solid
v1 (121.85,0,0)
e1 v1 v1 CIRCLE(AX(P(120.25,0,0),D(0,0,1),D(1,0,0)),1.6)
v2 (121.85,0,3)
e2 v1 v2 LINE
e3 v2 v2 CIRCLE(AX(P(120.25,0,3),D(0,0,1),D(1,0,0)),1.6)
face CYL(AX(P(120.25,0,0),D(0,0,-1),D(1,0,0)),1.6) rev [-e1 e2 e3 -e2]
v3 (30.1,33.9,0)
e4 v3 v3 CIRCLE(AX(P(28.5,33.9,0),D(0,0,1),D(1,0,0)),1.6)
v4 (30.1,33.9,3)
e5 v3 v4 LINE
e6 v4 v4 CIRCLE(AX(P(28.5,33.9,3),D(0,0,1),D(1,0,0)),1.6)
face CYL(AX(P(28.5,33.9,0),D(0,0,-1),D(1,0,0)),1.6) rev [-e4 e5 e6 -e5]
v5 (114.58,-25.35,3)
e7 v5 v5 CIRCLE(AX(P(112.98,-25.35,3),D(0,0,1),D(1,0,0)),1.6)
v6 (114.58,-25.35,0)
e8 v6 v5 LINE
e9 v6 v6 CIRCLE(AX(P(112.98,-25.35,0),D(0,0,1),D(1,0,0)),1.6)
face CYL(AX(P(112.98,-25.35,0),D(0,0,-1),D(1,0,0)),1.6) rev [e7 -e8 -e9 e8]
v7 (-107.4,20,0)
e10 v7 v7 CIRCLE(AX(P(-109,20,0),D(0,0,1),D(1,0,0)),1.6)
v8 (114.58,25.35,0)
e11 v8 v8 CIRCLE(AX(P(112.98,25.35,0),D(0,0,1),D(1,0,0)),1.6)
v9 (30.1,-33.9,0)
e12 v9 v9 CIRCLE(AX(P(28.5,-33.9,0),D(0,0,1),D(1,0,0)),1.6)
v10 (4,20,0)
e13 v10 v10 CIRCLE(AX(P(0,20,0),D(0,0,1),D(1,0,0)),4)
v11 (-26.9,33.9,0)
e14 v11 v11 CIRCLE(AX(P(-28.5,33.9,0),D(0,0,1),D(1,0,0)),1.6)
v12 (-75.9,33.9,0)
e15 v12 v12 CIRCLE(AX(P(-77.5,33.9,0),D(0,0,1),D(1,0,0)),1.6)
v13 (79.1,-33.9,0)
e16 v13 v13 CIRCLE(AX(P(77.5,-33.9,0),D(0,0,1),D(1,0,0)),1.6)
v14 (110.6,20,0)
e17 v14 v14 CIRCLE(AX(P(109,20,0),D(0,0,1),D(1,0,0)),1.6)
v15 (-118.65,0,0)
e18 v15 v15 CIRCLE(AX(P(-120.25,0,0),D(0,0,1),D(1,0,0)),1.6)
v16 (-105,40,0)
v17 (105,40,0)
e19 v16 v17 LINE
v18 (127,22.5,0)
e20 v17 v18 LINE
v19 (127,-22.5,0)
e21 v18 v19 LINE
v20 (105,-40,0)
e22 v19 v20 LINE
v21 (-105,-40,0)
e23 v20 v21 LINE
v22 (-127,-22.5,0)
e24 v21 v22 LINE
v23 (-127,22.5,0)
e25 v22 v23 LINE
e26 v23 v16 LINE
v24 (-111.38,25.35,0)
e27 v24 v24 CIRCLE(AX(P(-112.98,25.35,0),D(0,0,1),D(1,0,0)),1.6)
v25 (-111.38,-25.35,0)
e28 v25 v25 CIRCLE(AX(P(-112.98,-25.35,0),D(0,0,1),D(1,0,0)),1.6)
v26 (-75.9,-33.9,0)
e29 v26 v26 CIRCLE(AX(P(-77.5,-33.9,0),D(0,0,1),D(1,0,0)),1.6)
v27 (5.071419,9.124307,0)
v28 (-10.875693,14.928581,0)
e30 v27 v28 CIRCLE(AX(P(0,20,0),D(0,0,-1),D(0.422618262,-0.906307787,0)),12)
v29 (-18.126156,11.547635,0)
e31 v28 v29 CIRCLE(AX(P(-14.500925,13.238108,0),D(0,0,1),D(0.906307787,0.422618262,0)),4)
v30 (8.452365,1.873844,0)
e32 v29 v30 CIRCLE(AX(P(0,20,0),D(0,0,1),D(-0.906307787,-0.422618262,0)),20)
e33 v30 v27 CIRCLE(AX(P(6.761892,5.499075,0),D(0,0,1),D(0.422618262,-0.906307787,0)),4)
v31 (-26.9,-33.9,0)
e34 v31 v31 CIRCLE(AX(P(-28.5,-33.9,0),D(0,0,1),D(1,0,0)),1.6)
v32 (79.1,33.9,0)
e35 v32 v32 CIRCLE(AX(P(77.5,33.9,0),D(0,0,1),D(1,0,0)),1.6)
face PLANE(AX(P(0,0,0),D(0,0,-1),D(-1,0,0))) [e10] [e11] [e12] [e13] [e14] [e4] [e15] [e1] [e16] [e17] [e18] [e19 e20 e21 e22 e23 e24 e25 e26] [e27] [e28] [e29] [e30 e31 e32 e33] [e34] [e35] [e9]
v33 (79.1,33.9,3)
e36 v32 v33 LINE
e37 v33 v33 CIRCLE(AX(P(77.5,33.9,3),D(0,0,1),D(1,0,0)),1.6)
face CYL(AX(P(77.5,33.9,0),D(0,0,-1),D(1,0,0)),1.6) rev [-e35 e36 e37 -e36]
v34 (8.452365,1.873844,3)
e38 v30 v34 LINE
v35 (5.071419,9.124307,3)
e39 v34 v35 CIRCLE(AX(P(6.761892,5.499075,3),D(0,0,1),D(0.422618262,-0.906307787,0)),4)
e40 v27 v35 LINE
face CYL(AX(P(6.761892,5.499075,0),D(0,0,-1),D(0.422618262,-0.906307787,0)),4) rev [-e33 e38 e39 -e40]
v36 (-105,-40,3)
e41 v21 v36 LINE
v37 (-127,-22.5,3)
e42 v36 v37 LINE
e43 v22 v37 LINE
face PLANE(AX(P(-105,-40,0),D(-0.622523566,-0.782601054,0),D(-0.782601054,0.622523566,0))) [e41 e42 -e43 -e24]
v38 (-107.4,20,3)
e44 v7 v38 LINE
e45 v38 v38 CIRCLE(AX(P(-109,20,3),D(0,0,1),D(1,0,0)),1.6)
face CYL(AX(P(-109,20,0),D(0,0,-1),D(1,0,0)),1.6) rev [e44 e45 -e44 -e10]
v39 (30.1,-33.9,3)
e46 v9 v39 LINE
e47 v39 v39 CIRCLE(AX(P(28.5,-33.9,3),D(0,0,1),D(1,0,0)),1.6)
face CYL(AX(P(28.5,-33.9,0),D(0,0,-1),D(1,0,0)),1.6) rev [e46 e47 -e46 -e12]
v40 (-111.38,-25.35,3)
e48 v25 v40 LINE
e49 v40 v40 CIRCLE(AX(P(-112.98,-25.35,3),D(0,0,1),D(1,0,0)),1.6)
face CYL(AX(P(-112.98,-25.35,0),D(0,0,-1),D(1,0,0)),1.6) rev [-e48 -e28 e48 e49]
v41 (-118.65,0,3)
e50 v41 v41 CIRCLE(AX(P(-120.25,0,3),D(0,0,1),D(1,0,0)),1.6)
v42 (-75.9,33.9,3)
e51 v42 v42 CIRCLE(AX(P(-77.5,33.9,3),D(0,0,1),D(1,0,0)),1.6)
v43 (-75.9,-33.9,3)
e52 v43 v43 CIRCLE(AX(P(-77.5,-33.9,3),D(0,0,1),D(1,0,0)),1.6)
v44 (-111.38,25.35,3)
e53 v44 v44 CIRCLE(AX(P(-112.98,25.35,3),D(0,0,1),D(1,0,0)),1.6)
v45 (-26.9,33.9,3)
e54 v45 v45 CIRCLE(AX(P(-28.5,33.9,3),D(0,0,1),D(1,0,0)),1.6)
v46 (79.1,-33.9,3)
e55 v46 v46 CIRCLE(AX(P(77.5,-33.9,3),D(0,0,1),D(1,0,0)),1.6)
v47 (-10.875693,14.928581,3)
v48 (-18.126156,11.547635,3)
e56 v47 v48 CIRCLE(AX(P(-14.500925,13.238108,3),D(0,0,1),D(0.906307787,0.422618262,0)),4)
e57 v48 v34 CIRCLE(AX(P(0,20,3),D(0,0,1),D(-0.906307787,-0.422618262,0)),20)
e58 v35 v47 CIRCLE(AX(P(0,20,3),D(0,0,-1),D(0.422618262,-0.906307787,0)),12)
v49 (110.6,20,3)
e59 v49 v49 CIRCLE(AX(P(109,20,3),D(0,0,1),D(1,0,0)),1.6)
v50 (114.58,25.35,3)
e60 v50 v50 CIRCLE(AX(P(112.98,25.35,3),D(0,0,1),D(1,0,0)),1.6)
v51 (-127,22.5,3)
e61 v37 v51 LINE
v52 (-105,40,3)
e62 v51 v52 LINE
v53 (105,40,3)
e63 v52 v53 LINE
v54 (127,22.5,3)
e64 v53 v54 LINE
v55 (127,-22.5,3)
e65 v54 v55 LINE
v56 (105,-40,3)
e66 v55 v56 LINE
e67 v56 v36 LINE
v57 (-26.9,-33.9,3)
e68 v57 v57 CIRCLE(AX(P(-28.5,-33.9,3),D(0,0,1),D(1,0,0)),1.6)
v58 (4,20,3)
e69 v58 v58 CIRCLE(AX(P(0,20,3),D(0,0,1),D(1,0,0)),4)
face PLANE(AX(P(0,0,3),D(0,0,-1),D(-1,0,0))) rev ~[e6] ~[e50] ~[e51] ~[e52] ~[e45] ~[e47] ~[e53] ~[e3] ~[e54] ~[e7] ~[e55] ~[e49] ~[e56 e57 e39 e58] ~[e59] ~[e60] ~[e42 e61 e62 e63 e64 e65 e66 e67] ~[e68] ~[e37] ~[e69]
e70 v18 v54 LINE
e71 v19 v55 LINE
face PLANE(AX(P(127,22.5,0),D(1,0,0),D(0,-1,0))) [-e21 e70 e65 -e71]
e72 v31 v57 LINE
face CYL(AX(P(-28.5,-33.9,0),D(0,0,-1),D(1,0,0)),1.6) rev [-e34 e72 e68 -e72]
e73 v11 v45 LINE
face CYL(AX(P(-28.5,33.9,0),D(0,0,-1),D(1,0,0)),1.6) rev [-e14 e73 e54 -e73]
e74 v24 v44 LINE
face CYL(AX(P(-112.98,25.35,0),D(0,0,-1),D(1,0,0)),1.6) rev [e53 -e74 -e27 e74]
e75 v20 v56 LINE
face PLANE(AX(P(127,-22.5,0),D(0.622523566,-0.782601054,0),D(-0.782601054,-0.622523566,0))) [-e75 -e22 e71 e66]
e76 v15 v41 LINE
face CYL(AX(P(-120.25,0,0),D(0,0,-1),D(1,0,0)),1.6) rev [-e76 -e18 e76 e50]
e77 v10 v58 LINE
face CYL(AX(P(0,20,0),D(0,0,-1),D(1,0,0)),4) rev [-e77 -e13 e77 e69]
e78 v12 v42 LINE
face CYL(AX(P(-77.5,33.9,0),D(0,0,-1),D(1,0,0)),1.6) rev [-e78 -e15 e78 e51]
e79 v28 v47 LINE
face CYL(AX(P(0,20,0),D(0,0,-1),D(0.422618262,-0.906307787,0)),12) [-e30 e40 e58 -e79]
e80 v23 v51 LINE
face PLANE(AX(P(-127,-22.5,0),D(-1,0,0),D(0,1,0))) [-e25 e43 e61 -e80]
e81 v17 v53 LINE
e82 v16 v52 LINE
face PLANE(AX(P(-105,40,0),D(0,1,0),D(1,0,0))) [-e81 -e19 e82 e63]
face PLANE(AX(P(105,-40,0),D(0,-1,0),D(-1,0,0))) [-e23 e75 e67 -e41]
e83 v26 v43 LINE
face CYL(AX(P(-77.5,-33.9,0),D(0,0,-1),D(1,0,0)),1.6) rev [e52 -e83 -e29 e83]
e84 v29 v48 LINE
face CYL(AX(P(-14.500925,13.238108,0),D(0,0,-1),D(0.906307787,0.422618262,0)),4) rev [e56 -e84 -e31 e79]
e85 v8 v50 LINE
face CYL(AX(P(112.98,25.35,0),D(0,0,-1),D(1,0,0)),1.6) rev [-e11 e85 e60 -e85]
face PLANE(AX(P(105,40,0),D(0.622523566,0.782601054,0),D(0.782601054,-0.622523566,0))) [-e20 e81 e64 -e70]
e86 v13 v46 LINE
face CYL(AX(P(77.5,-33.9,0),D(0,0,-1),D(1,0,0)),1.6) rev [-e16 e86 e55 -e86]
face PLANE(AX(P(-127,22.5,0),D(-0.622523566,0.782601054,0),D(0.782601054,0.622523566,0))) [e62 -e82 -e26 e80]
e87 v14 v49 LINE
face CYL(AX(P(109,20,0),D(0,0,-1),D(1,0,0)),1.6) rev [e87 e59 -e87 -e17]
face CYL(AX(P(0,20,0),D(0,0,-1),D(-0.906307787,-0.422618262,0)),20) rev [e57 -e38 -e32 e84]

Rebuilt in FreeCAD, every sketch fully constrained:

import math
import FreeCAD as App
import Part
import Sketcher
from FreeCAD import Vector


def add_polygon(sketch, points):
    """Adds a closed chain of lines whose ends are joined by coincident constraints."""
    first, n = sketch.GeometryCount, len(points)
    for a, b in zip(points, points[1:] + points[:1]):
        sketch.addGeometry(Part.LineSegment(App.Vector(*a, 0), App.Vector(*b, 0)), False)
    for i in range(n):
        sketch.addConstraint(Sketcher.Constraint("Coincident", first + i, 2, first + (i + 1) % n, 1))

doc = App.newDocument("Part")
body = doc.addObject("PartDesign::Body", "Body")

sketch1 = doc.addObject("Sketcher::SketchObject", "Sketch")
body.addObject(sketch1)
sketch1.AttachmentSupport = (doc.XY_Plane, [""])
sketch1.MapMode = "FlatFace"
add_polygon(sketch1, [(-105, 40), (-127, 22.5), (-127, -22.5), (-105, -40), (105, -40), (127, -22.5), (127, 22.5), (105, 40)])
sketch1.addGeometry(Part.Circle(Vector(77.5, -33.9, 0), Vector(0, 0, 1), 1.6), False)
sketch1.addGeometry(Part.Circle(Vector(113, -25.4, 0), Vector(0, 0, 1), 1.6), False)
sketch1.addGeometry(Part.Circle(Vector(28.5, -33.9, 0), Vector(0, 0, 1), 1.6), False)
sketch1.addGeometry(Part.Circle(Vector(-28.5, -33.9, 0), Vector(0, 0, 1), 1.6), False)
sketch1.addGeometry(Part.Circle(Vector(-77.5, -33.9, 0), Vector(0, 0, 1), 1.6), False)
sketch1.addGeometry(Part.Circle(Vector(-113, -25.4, 0), Vector(0, 0, 1), 1.6), False)
sketch1.addGeometry(Part.Circle(Vector(120.2, 0, 0), Vector(0, 0, 1), 1.6), False)
sketch1.addGeometry(Part.Circle(Vector(109, 20, 0), Vector(0, 0, 1), 1.6), False)
sketch1.addGeometry(Part.Circle(Vector(113, 25.4, 0), Vector(0, 0, 1), 1.6), False)
sketch1.addGeometry(Part.Circle(Vector(77.5, 33.9, 0), Vector(0, 0, 1), 1.6), False)
sketch1.addGeometry(Part.Circle(Vector(0, 20, 0), Vector(0, 0, 1), 4), False)
sketch1.addGeometry(Part.Circle(Vector(28.5, 33.9, 0), Vector(0, 0, 1), 1.6), False)
sketch1.addGeometry(Part.ArcOfCircle(Part.Circle(Vector(-14.5, 13.2, 0), Vector(0, 0, 1), 4), math.radians(25), math.radians(205)), False)
sketch1.addGeometry(Part.ArcOfCircle(Part.Circle(Vector(0, 20, 0), Vector(0, 0, 1), 12), math.radians(-155), math.radians(-65)), False)
sketch1.addGeometry(Part.ArcOfCircle(Part.Circle(Vector(6.8, 5.5, 0), Vector(0, 0, 1), 4), math.radians(-65), math.radians(115)), False)
sketch1.addGeometry(Part.ArcOfCircle(Part.Circle(Vector(0, 20, 0), Vector(0, 0, 1), 20), math.radians(-155), math.radians(-65)), False)
sketch1.addGeometry(Part.Circle(Vector(-120.2, 0, 0), Vector(0, 0, 1), 1.6), False)
sketch1.addGeometry(Part.Circle(Vector(-28.5, 33.9, 0), Vector(0, 0, 1), 1.6), False)
sketch1.addGeometry(Part.Circle(Vector(-109, 20, 0), Vector(0, 0, 1), 1.6), False)
sketch1.addGeometry(Part.Circle(Vector(-113, 25.4, 0), Vector(0, 0, 1), 1.6), False)
sketch1.addGeometry(Part.Circle(Vector(-77.5, 33.9, 0), Vector(0, 0, 1), 1.6), False)
sketch1.addConstraint(Sketcher.Constraint("Tangent", 20, 1, 21, 1))
sketch1.addConstraint(Sketcher.Constraint("Tangent", 21, 2, 22, 2))
sketch1.addConstraint(Sketcher.Constraint("Tangent", 22, 1, 23, 2))
sketch1.addConstraint(Sketcher.Constraint("Tangent", 23, 1, 20, 2))
sketch1.addConstraint(Sketcher.Constraint("Vertical", 1))
sketch1.addConstraint(Sketcher.Constraint("Horizontal", 3))
sketch1.addConstraint(Sketcher.Constraint("Vertical", 5))
sketch1.addConstraint(Sketcher.Constraint("Horizontal", 7))
sketch1.addConstraint(Sketcher.Constraint("Coincident", 21, 3, 18, 3))
sketch1.addConstraint(Sketcher.Constraint("Coincident", 23, 3, 18, 3))
sketch1.addConstraint(Sketcher.Constraint("Equal", 8, 9))
sketch1.addConstraint(Sketcher.Constraint("Equal", 9, 10))
sketch1.addConstraint(Sketcher.Constraint("Equal", 10, 11))
sketch1.addConstraint(Sketcher.Constraint("Equal", 11, 12))
sketch1.addConstraint(Sketcher.Constraint("Equal", 12, 13))
sketch1.addConstraint(Sketcher.Constraint("Equal", 13, 14))
sketch1.addConstraint(Sketcher.Constraint("Equal", 14, 15))
sketch1.addConstraint(Sketcher.Constraint("Equal", 15, 16))
sketch1.addConstraint(Sketcher.Constraint("Equal", 16, 17))
sketch1.addConstraint(Sketcher.Constraint("Equal", 17, 19))
sketch1.addConstraint(Sketcher.Constraint("Equal", 18, 20))
sketch1.addConstraint(Sketcher.Constraint("Equal", 19, 24))
sketch1.addConstraint(Sketcher.Constraint("Equal", 24, 25))
sketch1.addConstraint(Sketcher.Constraint("Equal", 25, 26))
sketch1.addConstraint(Sketcher.Constraint("Equal", 26, 27))
sketch1.addConstraint(Sketcher.Constraint("Equal", 27, 28))
sketch1.addConstraint(Sketcher.Constraint("Symmetric", 13, 3, 16, 3, -1, 1))
sketch1.addConstraint(Sketcher.Constraint("Symmetric", 12, 3, 17, 3, -1, 1))
sketch1.addConstraint(Sketcher.Constraint("Symmetric", 11, 3, 19, 3, -1, 1))
sketch1.addConstraint(Sketcher.Constraint("Symmetric", 14, 3, 24, 3, -1, 1))
sketch1.addConstraint(Sketcher.Constraint("Symmetric", 10, 3, 25, 3, -1, 1))
sketch1.addConstraint(Sketcher.Constraint("Symmetric", 9, 3, 27, 3, -1, 1))
sketch1.addConstraint(Sketcher.Constraint("Symmetric", 8, 3, 28, 3, -1, 1))
sketch1.addConstraint(Sketcher.Constraint("Symmetric", 0, 2, 4, 2, -1, 1))
sketch1.addConstraint(Sketcher.Constraint("Symmetric", 2, 2, 6, 2, -1, 1))
sketch1.addConstraint(Sketcher.Constraint("Symmetric", 10, 3, 11, 3, -2))
sketch1.addConstraint(Sketcher.Constraint("Symmetric", 8, 3, 12, 3, -2))
sketch1.addConstraint(Sketcher.Constraint("Symmetric", 9, 3, 13, 3, -2))
sketch1.addConstraint(Sketcher.Constraint("Symmetric", 15, 3, 26, 3, -2))
sketch1.addConstraint(Sketcher.Constraint("PointOnObject", 14, 3, -1))
sketch1.addConstraint(Sketcher.Constraint("PointOnObject", 18, 3, -2))
sketch1.addConstraint(Sketcher.Constraint("Parallel", 0, 4))
sketch1.addConstraint(Sketcher.Constraint("Parallel", 2, 6))
sketch1.addConstraint(Sketcher.Constraint("Horizontal", 8, 3, 10, 3))
sketch1.addConstraint(Sketcher.Constraint("Horizontal", 15, 3, 18, 3))
sketch1.addConstraint(Sketcher.Constraint("Horizontal", 1, 2, 4, 2))
sketch1.addConstraint(Sketcher.Constraint("Vertical", 3, 2, 6, 2))
sketch1.addConstraint(Sketcher.Constraint("Diameter", 18, 8.0))
sketch1.addConstraint(Sketcher.Constraint("Radius", 21, 12.0))
sketch1.addConstraint(Sketcher.Constraint("Diameter", 8, 3.2))
sketch1.addConstraint(Sketcher.Constraint("DistanceX", 3, 1, 3, 2, 210.0))
sketch1.addConstraint(Sketcher.Constraint("DistanceY", 1, 2, 1, 1, 45.0))
sketch1.addConstraint(Sketcher.Constraint("DistanceX", -1, 1, 15, 3, 109.0))
sketch1.addConstraint(Sketcher.Constraint("DistanceY", -1, 1, 15, 3, 20.0))
sketch1.addConstraint(Sketcher.Constraint("DistanceX", 0, 2, -1, 1, 127.0))
sketch1.addConstraint(Sketcher.Constraint("DistanceY", 2, 2, -1, 1, 40.0))
sketch1.addConstraint(Sketcher.Constraint("DistanceX", 10, 3, 8, 3, 49.0))
sketch1.addConstraint(Sketcher.Constraint("DistanceX", 11, 3, 10, 3, 57.0))
sketch1.addConstraint(Sketcher.Constraint("DistanceY", 8, 3, -1, 1, 33.9))
sketch1.addConstraint(Sketcher.Constraint("DistanceY", 9, 3, 16, 3, 50.7))
sketch1.addConstraint(Sketcher.Constraint("DistanceX", -1, 1, 9, 3, 112.98))
sketch1.addConstraint(Sketcher.Constraint("DistanceX", -1, 1, 14, 3, 120.25))
sketch1.addConstraint(Sketcher.Constraint("DistanceY", -1, 1, 20, 1, 14.928581))
sketch1.addConstraint(Sketcher.Constraint("DistanceX", -1, 1, 21, 2, 5.071419))
pad1 = doc.addObject("PartDesign::Pad", "Pad")
body.addObject(pad1)
pad1.Profile = sketch1
pad1.Length = 3

doc.recompute()
